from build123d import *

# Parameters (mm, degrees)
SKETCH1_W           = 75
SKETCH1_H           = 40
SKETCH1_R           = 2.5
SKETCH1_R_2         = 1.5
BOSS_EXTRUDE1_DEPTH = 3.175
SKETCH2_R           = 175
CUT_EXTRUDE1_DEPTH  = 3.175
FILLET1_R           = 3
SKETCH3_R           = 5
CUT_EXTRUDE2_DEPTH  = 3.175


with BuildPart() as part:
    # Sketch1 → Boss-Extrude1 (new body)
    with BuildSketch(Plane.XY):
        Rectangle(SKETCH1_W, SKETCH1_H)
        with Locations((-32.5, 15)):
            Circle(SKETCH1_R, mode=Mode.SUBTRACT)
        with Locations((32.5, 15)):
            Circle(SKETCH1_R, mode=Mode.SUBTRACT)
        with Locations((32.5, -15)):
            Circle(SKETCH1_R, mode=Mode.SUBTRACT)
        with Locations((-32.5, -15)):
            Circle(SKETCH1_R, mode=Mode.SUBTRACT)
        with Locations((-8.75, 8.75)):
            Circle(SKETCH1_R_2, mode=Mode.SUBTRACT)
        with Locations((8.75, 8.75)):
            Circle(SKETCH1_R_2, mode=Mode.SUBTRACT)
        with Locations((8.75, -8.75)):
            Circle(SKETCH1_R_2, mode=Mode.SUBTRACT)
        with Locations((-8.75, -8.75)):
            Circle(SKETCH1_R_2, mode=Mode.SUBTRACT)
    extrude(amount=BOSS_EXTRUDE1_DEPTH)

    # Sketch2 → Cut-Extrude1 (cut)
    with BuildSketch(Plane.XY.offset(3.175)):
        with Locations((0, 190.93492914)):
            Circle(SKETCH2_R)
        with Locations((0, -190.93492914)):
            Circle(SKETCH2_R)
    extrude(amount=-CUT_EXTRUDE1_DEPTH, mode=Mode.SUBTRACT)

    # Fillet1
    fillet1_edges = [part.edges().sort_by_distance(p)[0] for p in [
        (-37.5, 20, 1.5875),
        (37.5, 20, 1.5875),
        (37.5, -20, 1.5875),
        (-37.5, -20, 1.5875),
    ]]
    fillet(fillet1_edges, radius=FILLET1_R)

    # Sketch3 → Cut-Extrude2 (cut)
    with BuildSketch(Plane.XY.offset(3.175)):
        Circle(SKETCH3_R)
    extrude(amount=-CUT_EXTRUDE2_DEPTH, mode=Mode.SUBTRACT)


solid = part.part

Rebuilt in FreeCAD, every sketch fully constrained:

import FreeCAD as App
import Part
import Sketcher

V = App.Vector


def edges_at(feature, points):
    """Names of the edges that pass closest to the given points."""
    edges = feature.Shape.Edges
    near = lambda p: min(range(len(edges)), key=lambda i: edges[i].distToShape(Part.Vertex(*p))[0])
    return sorted({f"Edge{near(p) + 1}" for p in points})


def add_polygon(sketch, points):
    """Adds a closed chain of lines whose ends are joined by coincident constraints."""
    first, n = sketch.GeometryCount, len(points)
    for a, b in zip(points, points[1:] + points[:1]):
        sketch.addGeometry(Part.LineSegment(App.Vector(*a, 0), App.Vector(*b, 0)), False)
    for i in range(n):
        sketch.addConstraint(Sketcher.Constraint("Coincident", first + i, 2, first + (i + 1) % n, 1))

doc = App.newDocument("Part")
body = doc.addObject("PartDesign::Body", "Body")

# Sketch on XY plane
sketch1 = body.newObject("Sketcher::SketchObject", "Sketch")
sketch1.AttachmentSupport = (doc.getObject("XY_Plane"), [""])
sketch1.MapMode = "FlatFace"
add_polygon(sketch1, [(-37.5, 20), (-37.5, -20), (37.5, -20), (37.5, 20)])  # lines 0-3
sketch1.addGeometry(Part.Circle(V(-32.5, -15, 0), V(0, 0, 1), 2.5), False)  # 4
sketch1.addGeometry(Part.Circle(V(-8.75, -8.75, 0), V(0, 0, 1), 1.5), False)  # 5
sketch1.addGeometry(Part.Circle(V(32.5, -15, 0), V(0, 0, 1), 2.5), False)  # 6
sketch1.addGeometry(Part.Circle(V(8.75, -8.75, 0), V(0, 0, 1), 1.5), False)  # 7
sketch1.addGeometry(Part.Circle(V(-32.5, 15, 0), V(0, 0, 1), 2.5), False)  # 8
sketch1.addGeometry(Part.Circle(V(-8.75, 8.75, 0), V(0, 0, 1), 1.5), False)  # 9
sketch1.addGeometry(Part.Circle(V(8.75, 8.75, 0), V(0, 0, 1), 1.5), False)  # 10
sketch1.addGeometry(Part.Circle(V(32.5, 15, 0), V(0, 0, 1), 2.5), False)  # 11
sketch1.addConstraint([
    Sketcher.Constraint("Vertical", 0),
    Sketcher.Constraint("Horizontal", 1),
    Sketcher.Constraint("Vertical", 2),
    Sketcher.Constraint("Horizontal", 3),
    Sketcher.Constraint("Equal", 4, 6),
    Sketcher.Constraint("Equal", 5, 7),
    Sketcher.Constraint("Equal", 6, 8),
    Sketcher.Constraint("Equal", 7, 9),
    Sketcher.Constraint("Equal", 9, 10),
    Sketcher.Constraint("Equal", 8, 11),
    Sketcher.Constraint("Symmetric", 6, 3, 8, 3, -1, 1),
    Sketcher.Constraint("Symmetric", 7, 3, 9, 3, -1, 1),
    Sketcher.Constraint("Symmetric", 5, 3, 10, 3, -1, 1),
    Sketcher.Constraint("Symmetric", 4, 3, 11, 3, -1, 1),
    Sketcher.Constraint("Symmetric", 0, 2, 2, 2, -1, 1),
    Sketcher.Constraint("Symmetric", 4, 3, 6, 3, -2),
    Sketcher.Constraint("Symmetric", 5, 3, 7, 3, -2),
    Sketcher.Constraint("Diameter", 4, 5.0),
    Sketcher.Constraint("Diameter", 5, 3.0),
    Sketcher.Constraint("DistanceX", 1, 1, 1, 2, 75.0),
    Sketcher.Constraint("DistanceY", 0, 2, 0, 1, 40.0),
    Sketcher.Constraint("DistanceY", 4, 3, -1, 1, 15.0),
    Sketcher.Constraint("DistanceX", 4, 3, 6, 3, 65.0),
    Sketcher.Constraint("DistanceX", 5, 3, 7, 3, 17.5),
    Sketcher.Constraint("DistanceY", 5, 3, 9, 3, 17.5),
])
pad1 = body.newObject("PartDesign::Pad", "Pad")
pad1.Profile = sketch1
pad1.Length = 3.175

# Sketch on XY plane
sketch2 = body.newObject("Sketcher::SketchObject", "Sketch001")
sketch2.AttachmentSupport = (doc.getObject("XY_Plane"), [""])
sketch2.MapMode = "FlatFace"
sketch2.AttachmentOffset = App.Placement(V(0, 0, 3.175), App.Rotation())
sketch2.addGeometry([
    Part.Circle(V(0, 190.934929, 0), V(0, 0, 1), 175),
    Part.Circle(V(0, -190.934929, 0), V(0, 0, 1), 175),
], False)
sketch2.addConstraint([
    Sketcher.Constraint("Equal", 0, 1),
    Sketcher.Constraint("Symmetric", 0, 3, 1, 3, -1, 1),
    Sketcher.Constraint("PointOnObject", 0, 3, -2),
    Sketcher.Constraint("Diameter", 0, 350.0),
    Sketcher.Constraint("DistanceY", -1, 1, 0, 3, 190.934929),
])
pocket1 = body.newObject("PartDesign::Pocket", "Pocket")
pocket1.Profile = sketch2
pocket1.Length = 3.175
doc.recompute()

fillet = body.newObject("PartDesign::Fillet", "Fillet")
fillet.Base = (pocket1, edges_at(pocket1, [
    (-37.5, 20, 1.587),
    (37.5, 20, 1.587),
    (37.5, -20, 1.587),
    (-37.5, -20, 1.587),
]))
fillet.Radius = 3

# Sketch on XY plane
sketch3 = body.newObject("Sketcher::SketchObject", "Sketch002")
sketch3.AttachmentSupport = (doc.getObject("XY_Plane"), [""])
sketch3.MapMode = "FlatFace"
sketch3.AttachmentOffset = App.Placement(V(0, 0, 3.175), App.Rotation())
sketch3.addGeometry(Part.Circle(V(0, 0, 0), V(0, 0, 1), 5), False)
sketch3.addConstraint([
    Sketcher.Constraint("Coincident", 0, 3, -1, 1),
    Sketcher.Constraint("Diameter", 0, 10.0),
])
pocket2 = body.newObject("PartDesign::Pocket", "Pocket001")
pocket2.Profile = sketch3
pocket2.Length = 3.175

doc.recompute()
